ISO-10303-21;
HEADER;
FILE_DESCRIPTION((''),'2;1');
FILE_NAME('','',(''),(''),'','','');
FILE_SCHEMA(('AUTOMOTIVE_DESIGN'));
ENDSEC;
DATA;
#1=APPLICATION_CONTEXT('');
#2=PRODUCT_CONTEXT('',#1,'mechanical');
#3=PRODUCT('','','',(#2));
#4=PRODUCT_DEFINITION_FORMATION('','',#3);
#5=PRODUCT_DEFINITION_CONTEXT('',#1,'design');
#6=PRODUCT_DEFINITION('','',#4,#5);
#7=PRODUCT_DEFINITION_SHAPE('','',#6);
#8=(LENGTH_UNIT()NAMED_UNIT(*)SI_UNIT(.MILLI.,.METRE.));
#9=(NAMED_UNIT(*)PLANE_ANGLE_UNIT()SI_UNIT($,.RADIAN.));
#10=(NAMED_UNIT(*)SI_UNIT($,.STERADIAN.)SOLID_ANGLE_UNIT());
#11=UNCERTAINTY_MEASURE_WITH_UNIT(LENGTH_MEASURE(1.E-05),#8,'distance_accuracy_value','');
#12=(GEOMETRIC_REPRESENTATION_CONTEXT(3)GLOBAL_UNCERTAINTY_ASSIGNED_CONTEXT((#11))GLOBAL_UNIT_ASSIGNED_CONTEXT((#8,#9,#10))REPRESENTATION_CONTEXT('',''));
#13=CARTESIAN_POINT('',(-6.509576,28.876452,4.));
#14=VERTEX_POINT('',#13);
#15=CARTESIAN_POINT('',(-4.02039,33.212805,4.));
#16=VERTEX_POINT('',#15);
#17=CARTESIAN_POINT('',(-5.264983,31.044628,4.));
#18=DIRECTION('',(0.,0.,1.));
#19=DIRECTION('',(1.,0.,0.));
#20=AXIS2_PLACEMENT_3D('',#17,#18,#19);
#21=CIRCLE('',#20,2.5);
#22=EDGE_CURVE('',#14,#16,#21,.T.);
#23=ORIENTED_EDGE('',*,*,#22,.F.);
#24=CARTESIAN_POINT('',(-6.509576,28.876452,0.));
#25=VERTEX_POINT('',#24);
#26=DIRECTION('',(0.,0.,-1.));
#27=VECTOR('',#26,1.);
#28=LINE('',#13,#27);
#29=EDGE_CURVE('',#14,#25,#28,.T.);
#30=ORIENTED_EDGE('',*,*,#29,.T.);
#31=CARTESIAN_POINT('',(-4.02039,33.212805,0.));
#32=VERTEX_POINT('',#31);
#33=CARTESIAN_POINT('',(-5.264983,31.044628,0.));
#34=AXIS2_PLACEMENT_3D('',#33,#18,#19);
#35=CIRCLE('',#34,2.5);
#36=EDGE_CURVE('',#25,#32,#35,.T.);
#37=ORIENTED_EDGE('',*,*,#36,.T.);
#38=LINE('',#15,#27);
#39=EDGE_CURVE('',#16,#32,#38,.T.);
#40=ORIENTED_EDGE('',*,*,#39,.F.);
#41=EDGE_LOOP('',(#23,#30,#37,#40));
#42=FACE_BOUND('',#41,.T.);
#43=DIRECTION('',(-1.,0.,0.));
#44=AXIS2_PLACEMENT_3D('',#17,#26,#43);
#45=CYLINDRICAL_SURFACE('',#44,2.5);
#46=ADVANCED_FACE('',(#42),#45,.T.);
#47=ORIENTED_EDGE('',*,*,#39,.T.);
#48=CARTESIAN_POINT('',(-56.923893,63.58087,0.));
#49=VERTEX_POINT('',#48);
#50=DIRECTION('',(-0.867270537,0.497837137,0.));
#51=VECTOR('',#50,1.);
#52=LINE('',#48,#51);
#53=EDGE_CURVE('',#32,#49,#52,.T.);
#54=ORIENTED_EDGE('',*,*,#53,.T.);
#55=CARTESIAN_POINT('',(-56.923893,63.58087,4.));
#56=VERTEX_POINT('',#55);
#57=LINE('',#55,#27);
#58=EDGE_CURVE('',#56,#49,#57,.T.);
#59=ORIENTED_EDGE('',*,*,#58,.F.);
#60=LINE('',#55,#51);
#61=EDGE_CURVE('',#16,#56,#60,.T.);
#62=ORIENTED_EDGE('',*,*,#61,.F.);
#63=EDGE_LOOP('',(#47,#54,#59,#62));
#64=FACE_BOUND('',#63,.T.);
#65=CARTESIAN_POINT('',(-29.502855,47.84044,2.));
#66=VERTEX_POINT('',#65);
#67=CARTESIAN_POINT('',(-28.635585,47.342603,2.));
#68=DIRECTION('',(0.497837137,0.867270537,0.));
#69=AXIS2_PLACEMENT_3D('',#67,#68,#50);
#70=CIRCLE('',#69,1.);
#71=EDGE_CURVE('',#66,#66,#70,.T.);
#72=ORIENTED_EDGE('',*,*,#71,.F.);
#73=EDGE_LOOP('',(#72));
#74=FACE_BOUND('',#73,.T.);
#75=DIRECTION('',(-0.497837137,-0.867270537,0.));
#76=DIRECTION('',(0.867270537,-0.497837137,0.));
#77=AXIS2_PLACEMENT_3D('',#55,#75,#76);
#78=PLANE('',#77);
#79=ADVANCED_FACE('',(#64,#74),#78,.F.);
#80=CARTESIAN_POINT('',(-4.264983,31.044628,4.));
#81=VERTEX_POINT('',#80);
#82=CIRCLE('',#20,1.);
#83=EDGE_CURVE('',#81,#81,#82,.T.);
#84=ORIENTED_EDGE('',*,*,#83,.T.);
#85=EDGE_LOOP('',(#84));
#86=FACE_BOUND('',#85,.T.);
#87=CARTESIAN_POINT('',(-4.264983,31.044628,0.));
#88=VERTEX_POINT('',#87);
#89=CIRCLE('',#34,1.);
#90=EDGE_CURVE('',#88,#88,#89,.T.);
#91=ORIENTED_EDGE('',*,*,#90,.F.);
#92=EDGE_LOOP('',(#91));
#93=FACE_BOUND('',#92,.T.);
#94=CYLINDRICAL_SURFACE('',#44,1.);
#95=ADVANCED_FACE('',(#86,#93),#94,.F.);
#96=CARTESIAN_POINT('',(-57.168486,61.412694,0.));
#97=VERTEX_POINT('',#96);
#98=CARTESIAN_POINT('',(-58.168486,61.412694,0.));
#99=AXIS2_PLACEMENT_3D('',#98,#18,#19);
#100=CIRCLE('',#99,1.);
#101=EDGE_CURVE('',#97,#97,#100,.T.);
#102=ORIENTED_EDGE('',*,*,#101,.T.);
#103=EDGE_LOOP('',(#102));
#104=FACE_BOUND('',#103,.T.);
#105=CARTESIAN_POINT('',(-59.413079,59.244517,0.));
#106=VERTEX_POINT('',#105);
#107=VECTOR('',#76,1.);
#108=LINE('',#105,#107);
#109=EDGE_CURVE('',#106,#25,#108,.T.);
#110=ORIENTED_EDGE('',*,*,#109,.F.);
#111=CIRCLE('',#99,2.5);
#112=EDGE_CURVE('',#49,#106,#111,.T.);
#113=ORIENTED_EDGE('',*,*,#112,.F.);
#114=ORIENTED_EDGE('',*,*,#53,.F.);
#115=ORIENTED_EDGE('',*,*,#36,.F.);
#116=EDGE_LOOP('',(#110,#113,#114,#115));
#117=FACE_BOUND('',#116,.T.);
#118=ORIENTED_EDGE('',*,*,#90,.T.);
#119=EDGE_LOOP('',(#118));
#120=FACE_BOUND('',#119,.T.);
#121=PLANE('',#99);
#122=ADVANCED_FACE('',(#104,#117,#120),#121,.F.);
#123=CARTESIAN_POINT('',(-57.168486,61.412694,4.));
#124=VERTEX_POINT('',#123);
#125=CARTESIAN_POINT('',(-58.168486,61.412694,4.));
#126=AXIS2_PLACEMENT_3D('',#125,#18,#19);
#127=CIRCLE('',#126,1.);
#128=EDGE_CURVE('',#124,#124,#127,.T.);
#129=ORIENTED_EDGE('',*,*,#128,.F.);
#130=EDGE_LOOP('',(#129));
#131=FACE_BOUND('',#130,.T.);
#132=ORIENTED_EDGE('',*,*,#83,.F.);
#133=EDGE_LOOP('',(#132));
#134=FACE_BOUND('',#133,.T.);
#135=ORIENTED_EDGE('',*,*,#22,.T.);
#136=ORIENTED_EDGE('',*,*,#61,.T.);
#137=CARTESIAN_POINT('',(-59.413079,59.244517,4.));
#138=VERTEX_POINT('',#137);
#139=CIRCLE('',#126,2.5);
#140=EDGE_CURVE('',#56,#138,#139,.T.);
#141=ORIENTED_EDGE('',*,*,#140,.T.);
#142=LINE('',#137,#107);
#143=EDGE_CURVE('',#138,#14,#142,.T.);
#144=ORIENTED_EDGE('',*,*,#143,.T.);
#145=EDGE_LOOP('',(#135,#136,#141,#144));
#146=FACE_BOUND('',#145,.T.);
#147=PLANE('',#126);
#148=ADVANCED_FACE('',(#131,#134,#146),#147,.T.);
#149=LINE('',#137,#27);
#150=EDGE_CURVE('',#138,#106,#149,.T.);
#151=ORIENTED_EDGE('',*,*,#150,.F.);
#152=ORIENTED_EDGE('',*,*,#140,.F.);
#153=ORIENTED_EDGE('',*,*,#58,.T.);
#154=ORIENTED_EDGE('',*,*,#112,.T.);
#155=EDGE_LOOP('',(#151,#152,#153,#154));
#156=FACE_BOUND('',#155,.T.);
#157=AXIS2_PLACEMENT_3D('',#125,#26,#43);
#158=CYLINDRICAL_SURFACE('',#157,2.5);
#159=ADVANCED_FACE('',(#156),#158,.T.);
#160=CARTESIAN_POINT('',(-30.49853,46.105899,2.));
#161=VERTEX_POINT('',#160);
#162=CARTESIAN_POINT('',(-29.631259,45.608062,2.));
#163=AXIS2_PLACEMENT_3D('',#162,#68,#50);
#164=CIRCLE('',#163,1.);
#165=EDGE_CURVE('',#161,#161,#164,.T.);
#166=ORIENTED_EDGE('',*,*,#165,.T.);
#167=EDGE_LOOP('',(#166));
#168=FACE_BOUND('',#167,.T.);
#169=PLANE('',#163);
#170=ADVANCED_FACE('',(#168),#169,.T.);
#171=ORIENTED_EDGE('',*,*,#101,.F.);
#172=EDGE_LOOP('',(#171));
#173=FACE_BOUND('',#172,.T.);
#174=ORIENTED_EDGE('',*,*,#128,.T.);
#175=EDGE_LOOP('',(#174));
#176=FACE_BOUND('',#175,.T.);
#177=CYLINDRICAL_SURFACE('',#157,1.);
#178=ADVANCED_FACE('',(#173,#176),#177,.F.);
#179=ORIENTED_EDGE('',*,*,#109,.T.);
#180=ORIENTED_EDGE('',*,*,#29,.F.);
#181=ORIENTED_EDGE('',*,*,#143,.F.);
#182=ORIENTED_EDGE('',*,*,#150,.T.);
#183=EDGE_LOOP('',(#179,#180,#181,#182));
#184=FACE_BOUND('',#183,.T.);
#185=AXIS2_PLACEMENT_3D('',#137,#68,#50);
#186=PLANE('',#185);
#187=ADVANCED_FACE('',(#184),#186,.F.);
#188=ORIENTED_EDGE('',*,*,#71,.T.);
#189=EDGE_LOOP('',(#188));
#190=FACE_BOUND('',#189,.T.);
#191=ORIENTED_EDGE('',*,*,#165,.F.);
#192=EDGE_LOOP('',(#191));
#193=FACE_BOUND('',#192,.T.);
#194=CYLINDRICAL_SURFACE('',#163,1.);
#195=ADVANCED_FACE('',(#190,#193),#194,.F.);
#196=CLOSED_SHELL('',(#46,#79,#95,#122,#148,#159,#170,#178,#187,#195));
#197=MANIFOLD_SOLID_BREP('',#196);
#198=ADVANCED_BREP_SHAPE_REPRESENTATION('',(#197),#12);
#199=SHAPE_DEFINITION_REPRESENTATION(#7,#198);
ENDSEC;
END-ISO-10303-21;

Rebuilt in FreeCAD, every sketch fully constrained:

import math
import FreeCAD as App
import Part
import Sketcher
from FreeCAD import Vector

doc = App.newDocument("Part")
body = doc.addObject("PartDesign::Body", "Body")

# Sketch on XY plane
sketch1 = body.newObject("Sketcher::SketchObject", "Sketch")
sketch1.AttachmentSupport = (doc.getObject("XY_Plane"), [""])
sketch1.MapMode = "FlatFace"
sketch1.addGeometry(Part.LineSegment(Vector(-4, 33.2, 0), Vector(-56.9, 63.6, 0)), False)
sketch1.addGeometry(Part.ArcOfCircle(Part.Circle(Vector(-58.2, 61.4, 0), Vector(0, 0, 1), 2.5), math.radians(60), math.radians(240)), False)
sketch1.addGeometry(Part.LineSegment(Vector(-59.4, 59.2, 0), Vector(-6.5, 28.9, 0)), False)
sketch1.addGeometry(Part.ArcOfCircle(Part.Circle(Vector(-5.3, 31, 0), Vector(0, 0, 1), 2.5), math.radians(-120), math.radians(60)), False)
sketch1.addGeometry(Part.Circle(Vector(-5.3, 31, 0), Vector(0, 0, 1), 1), False)
sketch1.addGeometry(Part.Circle(Vector(-58.2, 61.4, 0), Vector(0, 0, 1), 1), False)
sketch1.addConstraint(Sketcher.Constraint("Tangent", 0, 2, 1, 1))
sketch1.addConstraint(Sketcher.Constraint("Tangent", 1, 2, 2, 1))
sketch1.addConstraint(Sketcher.Constraint("Tangent", 2, 2, 3, 1))
sketch1.addConstraint(Sketcher.Constraint("Tangent", 3, 2, 0, 1))
sketch1.addConstraint(Sketcher.Constraint("Coincident", 4, 3, 3, 3))
sketch1.addConstraint(Sketcher.Constraint("Coincident", 5, 3, 1, 3))
sketch1.addConstraint(Sketcher.Constraint("Equal", 1, 3))
sketch1.addConstraint(Sketcher.Constraint("Equal", 4, 5))
sketch1.addConstraint(Sketcher.Constraint("Diameter", 4, 2.0))
sketch1.addConstraint(Sketcher.Constraint("Radius", 1, 2.5))
sketch1.addConstraint(Sketcher.Constraint("Distance", 0, 61.0))
sketch1.addConstraint(Sketcher.Constraint("DistanceY", -1, 1, 3, 3, 31.044628))
sketch1.addConstraint(Sketcher.Constraint("DistanceY", -1, 1, 0, 2, 63.58087))
sketch1.addConstraint(Sketcher.Constraint("DistanceX", 1, 2, -1, 1, 59.413079))
pad1 = body.newObject("PartDesign::Pad", "Pad")
pad1.Profile = sketch1
pad1.Length = 4

# Sketch on an angled plane
sketch2 = body.newObject("Sketcher::SketchObject", "Sketch001")
sketch2.Placement = App.Placement(Vector(13.343522, 23.245441, 0), App.Rotation(Vector(0.867270537, -0.497837137, 0), Vector(0, 0, -0.999999999), Vector(0.497837137, 0.867270537, 0), "ZXY"))
sketch2.addGeometry(Part.Circle(Vector(-48.4, -2, 0), Vector(0, 0, 1), 1), False)
sketch2.addConstraint(Sketcher.Constraint("Diameter", 0, 2.0))
sketch2.addConstraint(Sketcher.Constraint("DistanceY", 0, 3, -1, 1, 2.0))
sketch2.addConstraint(Sketcher.Constraint("DistanceX", 0, 3, -1, 1, 48.403705))
pocket1 = body.newObject("PartDesign::Pocket", "Pocket")
pocket1.Profile = sketch2
pocket1.Length = 2

doc.recompute()
